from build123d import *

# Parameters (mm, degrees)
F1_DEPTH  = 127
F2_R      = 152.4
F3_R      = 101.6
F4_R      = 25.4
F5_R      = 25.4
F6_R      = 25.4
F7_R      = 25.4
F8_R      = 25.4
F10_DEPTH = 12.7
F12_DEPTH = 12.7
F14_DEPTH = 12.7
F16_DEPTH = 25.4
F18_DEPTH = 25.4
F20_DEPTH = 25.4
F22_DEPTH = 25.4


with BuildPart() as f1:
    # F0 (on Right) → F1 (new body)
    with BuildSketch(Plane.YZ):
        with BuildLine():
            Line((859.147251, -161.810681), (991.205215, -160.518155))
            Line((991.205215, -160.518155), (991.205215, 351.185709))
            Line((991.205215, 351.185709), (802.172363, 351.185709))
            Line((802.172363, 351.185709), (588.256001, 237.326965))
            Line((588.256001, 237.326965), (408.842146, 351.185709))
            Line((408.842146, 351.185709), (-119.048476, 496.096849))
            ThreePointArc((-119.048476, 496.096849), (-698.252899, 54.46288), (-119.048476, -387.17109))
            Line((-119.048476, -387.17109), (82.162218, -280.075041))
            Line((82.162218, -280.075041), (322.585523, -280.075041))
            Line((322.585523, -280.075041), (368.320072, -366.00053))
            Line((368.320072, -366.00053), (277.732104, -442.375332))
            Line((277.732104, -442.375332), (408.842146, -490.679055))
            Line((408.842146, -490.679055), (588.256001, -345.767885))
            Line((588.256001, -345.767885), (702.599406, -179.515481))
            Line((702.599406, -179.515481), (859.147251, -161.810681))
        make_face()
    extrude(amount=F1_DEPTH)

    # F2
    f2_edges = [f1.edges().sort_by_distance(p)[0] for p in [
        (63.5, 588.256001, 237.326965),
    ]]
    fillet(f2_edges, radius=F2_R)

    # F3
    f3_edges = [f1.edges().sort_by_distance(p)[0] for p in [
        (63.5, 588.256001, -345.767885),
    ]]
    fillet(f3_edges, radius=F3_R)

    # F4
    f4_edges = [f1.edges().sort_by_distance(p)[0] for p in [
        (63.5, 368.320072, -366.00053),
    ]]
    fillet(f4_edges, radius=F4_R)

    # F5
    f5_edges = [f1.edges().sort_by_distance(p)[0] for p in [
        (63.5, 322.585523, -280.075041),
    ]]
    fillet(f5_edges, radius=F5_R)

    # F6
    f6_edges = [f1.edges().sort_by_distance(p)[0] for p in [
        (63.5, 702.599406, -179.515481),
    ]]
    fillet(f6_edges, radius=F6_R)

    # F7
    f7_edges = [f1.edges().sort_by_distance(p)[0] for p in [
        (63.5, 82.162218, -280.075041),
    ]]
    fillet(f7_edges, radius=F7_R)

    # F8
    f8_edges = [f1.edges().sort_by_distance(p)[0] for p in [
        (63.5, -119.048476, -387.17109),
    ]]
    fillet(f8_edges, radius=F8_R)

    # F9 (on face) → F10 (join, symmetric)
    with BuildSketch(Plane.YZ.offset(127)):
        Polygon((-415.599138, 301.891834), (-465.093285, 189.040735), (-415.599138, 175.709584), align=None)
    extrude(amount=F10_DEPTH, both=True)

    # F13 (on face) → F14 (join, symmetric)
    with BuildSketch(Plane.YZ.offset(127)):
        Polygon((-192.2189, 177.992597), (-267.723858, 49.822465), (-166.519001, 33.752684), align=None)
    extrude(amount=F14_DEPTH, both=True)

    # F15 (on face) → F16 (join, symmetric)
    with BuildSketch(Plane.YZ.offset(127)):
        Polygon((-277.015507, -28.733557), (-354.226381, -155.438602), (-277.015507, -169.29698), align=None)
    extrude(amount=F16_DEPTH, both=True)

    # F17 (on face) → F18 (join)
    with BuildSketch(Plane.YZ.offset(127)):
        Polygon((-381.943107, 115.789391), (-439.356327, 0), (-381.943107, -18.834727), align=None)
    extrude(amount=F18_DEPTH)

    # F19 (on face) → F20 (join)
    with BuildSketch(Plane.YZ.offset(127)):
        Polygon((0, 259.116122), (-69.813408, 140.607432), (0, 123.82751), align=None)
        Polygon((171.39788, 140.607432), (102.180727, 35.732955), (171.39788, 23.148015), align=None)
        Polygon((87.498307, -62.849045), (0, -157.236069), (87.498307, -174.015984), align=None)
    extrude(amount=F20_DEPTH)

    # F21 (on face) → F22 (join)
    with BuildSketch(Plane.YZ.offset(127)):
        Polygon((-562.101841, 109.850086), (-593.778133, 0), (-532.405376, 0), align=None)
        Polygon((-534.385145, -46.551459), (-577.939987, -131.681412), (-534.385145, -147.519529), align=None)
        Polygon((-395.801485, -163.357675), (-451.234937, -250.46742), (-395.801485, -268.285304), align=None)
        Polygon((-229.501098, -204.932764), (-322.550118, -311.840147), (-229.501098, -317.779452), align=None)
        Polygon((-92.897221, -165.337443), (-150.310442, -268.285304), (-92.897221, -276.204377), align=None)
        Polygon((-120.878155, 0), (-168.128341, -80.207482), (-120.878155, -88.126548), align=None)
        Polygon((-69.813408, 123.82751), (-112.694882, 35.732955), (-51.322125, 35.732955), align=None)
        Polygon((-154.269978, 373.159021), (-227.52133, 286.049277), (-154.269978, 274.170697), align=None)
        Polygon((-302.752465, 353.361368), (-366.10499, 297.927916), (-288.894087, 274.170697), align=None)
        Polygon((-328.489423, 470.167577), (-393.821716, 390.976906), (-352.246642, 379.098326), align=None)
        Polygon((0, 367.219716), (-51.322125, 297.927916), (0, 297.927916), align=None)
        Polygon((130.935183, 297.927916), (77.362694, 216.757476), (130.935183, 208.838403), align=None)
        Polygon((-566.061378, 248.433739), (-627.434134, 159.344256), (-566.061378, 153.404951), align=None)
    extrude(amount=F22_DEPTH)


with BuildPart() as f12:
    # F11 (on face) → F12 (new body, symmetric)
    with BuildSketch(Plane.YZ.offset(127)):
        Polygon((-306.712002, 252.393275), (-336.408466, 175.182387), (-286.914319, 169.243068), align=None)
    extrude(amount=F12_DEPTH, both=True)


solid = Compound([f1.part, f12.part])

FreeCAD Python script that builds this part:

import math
import FreeCAD as App
import Part
import Sketcher

V = App.Vector
Q = App.Units.Quantity


def edges_at(feature, points):
    """Names of the edges that pass closest to the given points."""
    edges = feature.Shape.Edges
    near = lambda p: min(range(len(edges)), key=lambda i: edges[i].distToShape(Part.Vertex(*p))[0])
    return sorted({f"Edge{near(p) + 1}" for p in points})


def add_polygon(sketch, points):
    """Adds a closed chain of lines whose ends are joined by coincident constraints."""
    first, n = sketch.GeometryCount, len(points)
    for a, b in zip(points, points[1:] + points[:1]):
        sketch.addGeometry(Part.LineSegment(App.Vector(*a, 0), App.Vector(*b, 0)), False)
    for i in range(n):
        sketch.addConstraint(Sketcher.Constraint("Coincident", first + i, 2, first + (i + 1) % n, 1))

doc = App.newDocument("Part")
body = doc.addObject("PartDesign::Body", "Body")

# Sketch on YZ plane
sketch1 = doc.addObject("Sketcher::SketchObject", "Sketch")
body.addObject(sketch1)
sketch1.AttachmentSupport = (doc.YZ_Plane, [""])
sketch1.MapMode = "FlatFace"
sketch1.addGeometry(Part.LineSegment(V(859, -162, 0), V(991, -161, 0)), False)
sketch1.addGeometry(Part.LineSegment(V(991, -161, 0), V(991, 351, 0)), False)
sketch1.addGeometry(Part.LineSegment(V(991, 351, 0), V(802, 351, 0)), False)
sketch1.addGeometry(Part.LineSegment(V(802, 351, 0), V(588, 237, 0)), False)
sketch1.addGeometry(Part.LineSegment(V(588, 237, 0), V(409, 351, 0)), False)
sketch1.addGeometry(Part.LineSegment(V(409, 351, 0), V(-119, 496, 0)), False)
sketch1.addGeometry(Part.ArcOfCircle(Part.Circle(V(-240, 54, 0), V(0, 0, 1), 458), math.radians(75), math.radians(285)), False)
sketch1.addGeometry(Part.LineSegment(V(-119, -387, 0), V(82, -280, 0)), False)
sketch1.addGeometry(Part.LineSegment(V(82, -280, 0), V(323, -280, 0)), False)
sketch1.addGeometry(Part.LineSegment(V(323, -280, 0), V(368, -366, 0)), False)
sketch1.addGeometry(Part.LineSegment(V(368, -366, 0), V(278, -442, 0)), False)
sketch1.addGeometry(Part.LineSegment(V(278, -442, 0), V(409, -491, 0)), False)
sketch1.addGeometry(Part.LineSegment(V(409, -491, 0), V(588, -346, 0)), False)
sketch1.addGeometry(Part.LineSegment(V(588, -346, 0), V(703, -180, 0)), False)
sketch1.addGeometry(Part.LineSegment(V(703, -180, 0), V(859, -162, 0)), False)
sketch1.addConstraint(Sketcher.Constraint("Coincident", 0, 2, 1, 1))
sketch1.addConstraint(Sketcher.Constraint("Coincident", 1, 2, 2, 1))
sketch1.addConstraint(Sketcher.Constraint("Coincident", 2, 2, 3, 1))
sketch1.addConstraint(Sketcher.Constraint("Coincident", 3, 2, 4, 1))
sketch1.addConstraint(Sketcher.Constraint("Coincident", 4, 2, 5, 1))
sketch1.addConstraint(Sketcher.Constraint("Tangent", 5, 2, 6, 1))
sketch1.addConstraint(Sketcher.Constraint("Coincident", 6, 2, 7, 1))
sketch1.addConstraint(Sketcher.Constraint("Coincident", 7, 2, 8, 1))
sketch1.addConstraint(Sketcher.Constraint("Coincident", 8, 2, 9, 1))
sketch1.addConstraint(Sketcher.Constraint("Coincident", 9, 2, 10, 1))
sketch1.addConstraint(Sketcher.Constraint("Coincident", 10, 2, 11, 1))
sketch1.addConstraint(Sketcher.Constraint("Coincident", 11, 2, 12, 1))
sketch1.addConstraint(Sketcher.Constraint("Coincident", 12, 2, 13, 1))
sketch1.addConstraint(Sketcher.Constraint("Coincident", 13, 2, 14, 1))
sketch1.addConstraint(Sketcher.Constraint("Coincident", 14, 2, 0, 1))
sketch1.addConstraint(Sketcher.Constraint("Vertical", 1))
sketch1.addConstraint(Sketcher.Constraint("Horizontal", 2))
sketch1.addConstraint(Sketcher.Constraint("Horizontal", 8))
sketch1.addConstraint(Sketcher.Constraint("Parallel", 3, 7))
sketch1.addConstraint(Sketcher.Constraint("Perpendicular", 7, 9))
sketch1.addConstraint(Sketcher.Constraint("Horizontal", 2, 2, 4, 2))
sketch1.addConstraint(Sketcher.Constraint("Vertical", 5, 2, 6, 2))
sketch1.addConstraint(Sketcher.Constraint("Vertical", 4, 2, 11, 2))
sketch1.addConstraint(Sketcher.Constraint("Vertical", 3, 2, 12, 2))
sketch1.addConstraint(Sketcher.Constraint("Radius", 6, 457.971578))
sketch1.addConstraint(Sketcher.Constraint("Distance", 3, 242.330402))
sketch1.addConstraint(Sketcher.Constraint("DistanceX", 2, 2, 2, 1, 189.032852))
sketch1.addConstraint(Sketcher.Constraint("DistanceX", -1, 1, 3, 2, 588.256001))
sketch1.addConstraint(Sketcher.Constraint("DistanceY", 6, 2, 4, 2, 738.356799))
sketch1.addConstraint(Sketcher.Constraint("DistanceY", 10, 2, 9, 2, 76.374802))
sketch1.addConstraint(Sketcher.Constraint("DistanceY", 13, 2, 14, 2, 17.7048))
sketch1.addConstraint(Sketcher.Constraint("Distance", 0, 132.064289))
sketch1.addConstraint(Sketcher.Constraint("Distance", 5, 547.41917))
sketch1.addConstraint(Sketcher.Constraint("Distance", 7, 227.937068))
sketch1.addConstraint(Sketcher.Constraint("Distance", 10, 118.487511))
sketch1.addConstraint(Sketcher.Constraint("Distance", 11, 139.725061))
sketch1.addConstraint(Sketcher.Constraint("Distance", 12, 230.626491))
sketch1.addConstraint(Sketcher.Constraint("Distance", 13, 201.777789))
sketch1.addConstraint(Sketcher.Constraint("DistanceX", 8, 1, 8, 2, 240.423305))
sketch1.addConstraint(Sketcher.Constraint("DistanceY", 1, 1, 1, 2, 511.703864))
sketch1.addConstraint(Sketcher.Constraint("DistanceX", 6, 3, -1, 1, 240.281321))
sketch1.addConstraint(Sketcher.Constraint("DistanceY", -1, 1, 6, 3, 54.462879))
sketch1.addConstraint(Sketcher.Constraint("DistanceY", 7, 2, -1, 1, 280.075041))
sketch1.addConstraint(Sketcher.Constraint("DistanceX", -1, 1, 9, 2, 368.320072))
sketch1.addConstraint(Sketcher.Constraint("DistanceY", 13, 2, -1, 1, 179.515481))
pad1 = doc.addObject("PartDesign::Pad", "Pad")
body.addObject(pad1)
pad1.Profile = sketch1
pad1.Length = Q("5 in")
doc.recompute()

fillet = doc.addObject("PartDesign::Fillet", "Fillet")
body.addObject(fillet)
fillet.Base = (pad1, edges_at(pad1, [(63.5, 588.256, 237.327)]))
fillet.Radius = Q("6 in")
doc.recompute()

fillet2 = doc.addObject("PartDesign::Fillet", "Fillet001")
body.addObject(fillet2)
fillet2.Base = (fillet, edges_at(fillet, [(63.5, 588.256, -345.768)]))
fillet2.Radius = Q("4 in")
doc.recompute()

fillet3 = doc.addObject("PartDesign::Fillet", "Fillet002")
body.addObject(fillet3)
fillet3.Base = (fillet2, edges_at(fillet2, [(63.5, 368.32, -366.001)]))
fillet3.Radius = Q("1 in")
doc.recompute()

fillet4 = doc.addObject("PartDesign::Fillet", "Fillet003")
body.addObject(fillet4)
fillet4.Base = (fillet3, edges_at(fillet3, [(63.5, 322.586, -280.075)]))
fillet4.Radius = Q("1 in")
doc.recompute()

fillet5 = doc.addObject("PartDesign::Fillet", "Fillet004")
body.addObject(fillet5)
fillet5.Base = (fillet4, edges_at(fillet4, [(63.5, 702.599, -179.515)]))
fillet5.Radius = Q("1 in")
doc.recompute()

fillet6 = doc.addObject("PartDesign::Fillet", "Fillet005")
body.addObject(fillet6)
fillet6.Base = (fillet5, edges_at(fillet5, [(63.5, 82.162, -280.075)]))
fillet6.Radius = Q("1 in")
doc.recompute()

fillet7 = doc.addObject("PartDesign::Fillet", "Fillet006")
body.addObject(fillet7)
fillet7.Base = (fillet6, edges_at(fillet6, [(63.5, -119.048, -387.171)]))
fillet7.Radius = Q("1 in")

# Sketch on YZ plane
sketch2 = doc.addObject("Sketcher::SketchObject", "Sketch001")
body.addObject(sketch2)
sketch2.AttachmentSupport = (doc.YZ_Plane, [""])
sketch2.MapMode = "FlatFace"
sketch2.AttachmentOffset = App.Placement(V(0, 0, 5 * 25.4), App.Rotation())
add_polygon(sketch2, [(-416, 302), (-465, 189), (-416, 176)])  # lines 0-2
sketch2.addConstraint(Sketcher.Constraint("Vertical", 2))
sketch2.addConstraint(Sketcher.Constraint("DistanceY", -1, 1, 1, 2, Q("6.9177002 in")))
sketch2.addConstraint(Sketcher.Constraint("Distance", 0, 123.227599))
sketch2.addConstraint(Sketcher.Constraint("DistanceY", 2, 1, 2, 2, 126.18225))
sketch2.addConstraint(Sketcher.Constraint("DistanceY", 0, 2, 2, 2, 112.851099))
sketch2.addConstraint(Sketcher.Constraint("DistanceX", 1, 2, -1, 1, 415.599138))
pad2 = doc.addObject("PartDesign::Pad", "Pad001")
body.addObject(pad2)
pad2.Profile = sketch2
pad2.Length = Q("1 in")
pad2.Midplane = True

# Sketch on YZ plane
sketch3 = doc.addObject("Sketcher::SketchObject", "Sketch002")
body.addObject(sketch3)
sketch3.AttachmentSupport = (doc.YZ_Plane, [""])
sketch3.MapMode = "FlatFace"
sketch3.AttachmentOffset = App.Placement(V(0, 0, 5 * 25.4), App.Rotation())
add_polygon(sketch3, [(-192, 178), (-268, 50), (-167, 34)])  # lines 0-2
sketch3.addConstraint(Sketcher.Constraint("DistanceX", 1, 2, -1, 1, 166.519001))
sketch3.addConstraint(Sketcher.Constraint("DistanceX", 2, 2, -1, 1, 192.2189))
sketch3.addConstraint(Sketcher.Constraint("Distance", 2, 146.51156))
sketch3.addConstraint(Sketcher.Constraint("DistanceX", 0, 2, -1, 1, 267.723858))
sketch3.addConstraint(Sketcher.Constraint("DistanceY", 1, 2, 0, 2, 16.069781))
sketch3.addConstraint(Sketcher.Constraint("DistanceY", -1, 1, 0, 2, 49.822465))
pad3 = doc.addObject("PartDesign::Pad", "Pad002")
body.addObject(pad3)
pad3.Profile = sketch3
pad3.Length = Q("1 in")
pad3.Midplane = True

# Sketch on YZ plane
sketch4 = doc.addObject("Sketcher::SketchObject", "Sketch003")
body.addObject(sketch4)
sketch4.AttachmentSupport = (doc.YZ_Plane, [""])
sketch4.MapMode = "FlatFace"
sketch4.AttachmentOffset = App.Placement(V(0, 0, 5 * 25.4), App.Rotation())
add_polygon(sketch4, [(-277, -29), (-354, -155), (-277, -169)])  # lines 0-2
sketch4.addConstraint(Sketcher.Constraint("Vertical", 2))
sketch4.addConstraint(Sketcher.Constraint("DistanceY", 0, 2, -1, 1, 155.438602))
sketch4.addConstraint(Sketcher.Constraint("DistanceY", 2, 1, 2, 2, 140.563423))
sketch4.addConstraint(Sketcher.Constraint("DistanceX", 0, 2, -1, 1, 354.226381))
sketch4.addConstraint(Sketcher.Constraint("DistanceY", 1, 2, -1, 1, 169.29698))
sketch4.addConstraint(Sketcher.Constraint("Distance", 0, 148.376843))
pad4 = doc.addObject("PartDesign::Pad", "Pad003")
body.addObject(pad4)
pad4.Profile = sketch4
pad4.Length = Q("2 in")
pad4.Midplane = True

# Sketch on YZ plane
sketch5 = doc.addObject("Sketcher::SketchObject", "Sketch004")
body.addObject(sketch5)
sketch5.AttachmentSupport = (doc.YZ_Plane, [""])
sketch5.MapMode = "FlatFace"
sketch5.AttachmentOffset = App.Placement(V(0, 0, 5 * 25.4), App.Rotation())
add_polygon(sketch5, [(-382, 116), (-439, 0), (-382, -19)])  # lines 0-2
sketch5.addConstraint(Sketcher.Constraint("Vertical", 2))
sketch5.addConstraint(Sketcher.Constraint("PointOnObject", 0, 2, -1))
sketch5.addConstraint(Sketcher.Constraint("DistanceY", 2, 1, 2, 2, 134.624118))
sketch5.addConstraint(Sketcher.Constraint("Distance", 0, 129.24187))
sketch5.addConstraint(Sketcher.Constraint("Distance", 1, 60.42371))
sketch5.addConstraint(Sketcher.Constraint("DistanceX", 0, 2, -1, 1, 439.356327))
pad5 = doc.addObject("PartDesign::Pad", "Pad004")
body.addObject(pad5)
pad5.Profile = sketch5
pad5.Length = Q("1 in")

# Sketch on YZ plane
sketch6 = doc.addObject("Sketcher::SketchObject", "Sketch005")
body.addObject(sketch6)
sketch6.AttachmentSupport = (doc.YZ_Plane, [""])
sketch6.MapMode = "FlatFace"
sketch6.AttachmentOffset = App.Placement(V(0, 0, 5 * 25.4), App.Rotation())
add_polygon(sketch6, [(0, 259), (-70, 141), (0, 124)])  # lines 0-2
add_polygon(sketch6, [(171, 141), (102, 36), (171, 23)])  # lines 3-5
add_polygon(sketch6, [(87, -63), (0, -157), (87, -174)])  # lines 6-8
sketch6.addConstraint(Sketcher.Constraint("Vertical", 2))
sketch6.addConstraint(Sketcher.Constraint("Vertical", 5))
sketch6.addConstraint(Sketcher.Constraint("Vertical", 8))
sketch6.addConstraint(Sketcher.Constraint("PointOnObject", 1, 2, -2))
sketch6.addConstraint(Sketcher.Constraint("PointOnObject", 6, 2, -2))
sketch6.addConstraint(Sketcher.Constraint("Horizontal", 0, 2, 5, 2))
sketch6.addConstraint(Sketcher.Constraint("DistanceY", 2, 1, 2, 2, 135.288612))
sketch6.addConstraint(Sketcher.Constraint("DistanceY", 8, 1, 8, 2, 111.166939))
sketch6.addConstraint(Sketcher.Constraint("DistanceY", 6, 2, 0, 2, 297.843501))
sketch6.addConstraint(Sketcher.Constraint("DistanceY", 7, 2, 4, 2, 197.163999))
sketch6.addConstraint(Sketcher.Constraint("DistanceY", 8, 2, 3, 2, 98.582))
sketch6.addConstraint(Sketcher.Constraint("Distance", 6, 128.704561))
sketch6.addConstraint(Sketcher.Constraint("DistanceY", 5, 1, 5, 2, 117.459417))
sketch6.addConstraint(Sketcher.Constraint("DistanceY", -1, 1, 0, 2, 140.607432))
sketch6.addConstraint(Sketcher.Constraint("DistanceY", -1, 1, 1, 2, 123.82751))
sketch6.addConstraint(Sketcher.Constraint("DistanceX", -1, 1, 4, 2, 171.39788))
sketch6.addConstraint(Sketcher.Constraint("DistanceX", 7, 2, 3, 2, 14.68242))
sketch6.addConstraint(Sketcher.Constraint("Distance", 0, 137.543526))
pad6 = doc.addObject("PartDesign::Pad", "Pad005")
body.addObject(pad6)
pad6.Profile = sketch6
pad6.Length = Q("1 in")

# Sketch on YZ plane
sketch7 = doc.addObject("Sketcher::SketchObject", "Sketch006")
body.addObject(sketch7)
sketch7.AttachmentSupport = (doc.YZ_Plane, [""])
sketch7.MapMode = "FlatFace"
sketch7.AttachmentOffset = App.Placement(V(0, 0, 5 * 25.4), App.Rotation())
add_polygon(sketch7, [(-562, 110), (-594, 0), (-532, 0)])  # lines 0-2
add_polygon(sketch7, [(-534, -47), (-578, -132), (-534, -148)])  # lines 3-5
add_polygon(sketch7, [(-396, -163), (-451, -250), (-396, -268)])  # lines 6-8
add_polygon(sketch7, [(-230, -205), (-323, -312), (-230, -318)])  # lines 9-11
add_polygon(sketch7, [(-93, -165), (-150, -268), (-93, -276)])  # lines 12-14
add_polygon(sketch7, [(-121, 0), (-168, -80), (-121, -88)])  # lines 15-17
add_polygon(sketch7, [(-70, 124), (-113, 36), (-51, 36)])  # lines 18-20
add_polygon(sketch7, [(-154, 373), (-228, 286), (-154, 274)])  # lines 21-23
add_polygon(sketch7, [(-303, 353), (-366, 298), (-289, 274)])  # lines 24-26
add_polygon(sketch7, [(-328, 470), (-394, 391), (-352, 379)])  # lines 27-29
add_polygon(sketch7, [(0, 367), (-51, 298), (0, 298)])  # lines 30-32
add_polygon(sketch7, [(131, 298), (77, 217), (131, 209)])  # lines 33-35
add_polygon(sketch7, [(-566, 248), (-627, 159), (-566, 153)])  # lines 36-38
sketch7.addConstraint(Sketcher.Constraint("Horizontal", 1))
sketch7.addConstraint(Sketcher.Constraint("Vertical", 5))
sketch7.addConstraint(Sketcher.Constraint("Vertical", 8))
sketch7.addConstraint(Sketcher.Constraint("Vertical", 11))
sketch7.addConstraint(Sketcher.Constraint("Vertical", 14))
sketch7.addConstraint(Sketcher.Constraint("Vertical", 17))
sketch7.addConstraint(Sketcher.Constraint("Horizontal", 19))
sketch7.addConstraint(Sketcher.Constraint("Vertical", 23))
sketch7.addConstraint(Sketcher.Constraint("Horizontal", 31))
sketch7.addConstraint(Sketcher.Constraint("Vertical", 32))
sketch7.addConstraint(Sketcher.Constraint("Vertical", 35))
sketch7.addConstraint(Sketcher.Constraint("Vertical", 38))
sketch7.addConstraint(Sketcher.Constraint("PointOnObject", 0, 2, -1))
sketch7.addConstraint(Sketcher.Constraint("PointOnObject", 17, 2, -1))
sketch7.addConstraint(Sketcher.Constraint("PointOnObject", 31, 2, -2))
sketch7.addConstraint(Sketcher.Constraint("Horizontal", 7, 2, 12, 2))
sketch7.addConstraint(Sketcher.Constraint("Horizontal", 22, 2, 25, 2))
sketch7.addConstraint(Sketcher.Constraint("Horizontal", 24, 2, 30, 2))
sketch7.addConstraint(Sketcher.Constraint("Horizontal", 31, 2, 35, 2))
sketch7.addConstraint(Sketcher.Constraint("Vertical", 19, 2, 30, 2))
sketch7.addConstraint(Sketcher.Constraint("Equal", 1, 19))
sketch7.addConstraint(Sketcher.Constraint("DistanceY", 32, 1, 32, 2, 69.2918))
sketch7.addConstraint(Sketcher.Constraint("DistanceY", -1, 1, 23, 2, Q("14.6913 in")))
sketch7.addConstraint(Sketcher.Constraint("Distance", 6, 103.251999))
sketch7.addConstraint(Sketcher.Constraint("Distance", 33, 97.255601))
sketch7.addConstraint(Sketcher.Constraint("DistanceY", 5, 1, 5, 2, 100.96807))
sketch7.addConstraint(Sketcher.Constraint("DistanceY", 8, 1, 8, 2, 104.927629))
sketch7.addConstraint(Sketcher.Constraint("DistanceY", 11, 1, 11, 2, 112.846688))
sketch7.addConstraint(Sketcher.Constraint("DistanceY", 17, 1, 17, 2, 88.126548))
sketch7.addConstraint(Sketcher.Constraint("DistanceX", 10, 2, -1, 1, 229.501098))
sketch7.addConstraint(Sketcher.Constraint("DistanceY", 3, 2, 2, 2, 241.531498))
sketch7.addConstraint(Sketcher.Constraint("DistanceX", 3, 2, 7, 2, 182.138502))
sketch7.addConstraint(Sketcher.Constraint("DistanceX", 15, 2, 12, 2, 17.817899))
sketch7.addConstraint(Sketcher.Constraint("DistanceY", 14, 2, 18, 2, 201.070398))
sketch7.addConstraint(Sketcher.Constraint("DistanceX", 36, 2, 0, 2, 33.656001))
sketch7.addConstraint(Sketcher.Constraint("DistanceX", 37, 2, 1, 2, 33.656002))
sketch7.addConstraint(Sketcher.Constraint("Distance", 3, 95.624961))
sketch7.addConstraint(Sketcher.Constraint("Distance", 4, 46.345121))
sketch7.addConstraint(Sketcher.Constraint("Distance", 10, 93.23838))
sketch7.addConstraint(Sketcher.Constraint("Distance", 13, 57.956791))
sketch7.addConstraint(Sketcher.Constraint("Distance", 21, 113.815061))
sketch7.addConstraint(Sketcher.Constraint("Distance", 22, 74.208229))
sketch7.addConstraint(Sketcher.Constraint("DistanceX", 1, 1, 1, 2, 61.372757))
sketch7.addConstraint(Sketcher.Constraint("DistanceX", 31, 1, 31, 2, 51.322125))
sketch7.addConstraint(Sketcher.Constraint("DistanceY", 14, 1, 14, 2, 110.866934))
sketch7.addConstraint(Sketcher.Constraint("DistanceY", 23, 1, 23, 2, 98.988324))
sketch7.addConstraint(Sketcher.Constraint("DistanceY", 35, 1, 35, 2, 89.089513))
sketch7.addConstraint(Sketcher.Constraint("DistanceY", 38, 1, 38, 2, 95.028788))
sketch7.addConstraint(Sketcher.Constraint("DistanceX", 2, 2, -1, 1, 562.101841))
sketch7.addConstraint(Sketcher.Constraint("DistanceY", 3, 2, -1, 1, 131.681412))
sketch7.addConstraint(Sketcher.Constraint("DistanceY", 6, 2, -1, 1, 250.46742))
sketch7.addConstraint(Sketcher.Constraint("DistanceX", 9, 2, -1, 1, 322.550118))
sketch7.addConstraint(Sketcher.Constraint("DistanceY", 10, 2, -1, 1, 317.779452))
sketch7.addConstraint(Sketcher.Constraint("DistanceX", 12, 2, -1, 1, 150.310442))
sketch7.addConstraint(Sketcher.Constraint("DistanceX", 13, 2, -1, 1, 92.897221))
sketch7.addConstraint(Sketcher.Constraint("DistanceY", 15, 2, -1, 1, 80.207482))
sketch7.addConstraint(Sketcher.Constraint("DistanceY", -1, 1, 20, 2, 123.82751))
sketch7.addConstraint(Sketcher.Constraint("DistanceX", 21, 2, -1, 1, 227.52133))
sketch7.addConstraint(Sketcher.Constraint("DistanceX", 24, 2, -1, 1, 366.10499))
sketch7.addConstraint(Sketcher.Constraint("DistanceY", -1, 1, 26, 2, 353.361368))
sketch7.addConstraint(Sketcher.Constraint("DistanceX", 28, 2, -1, 1, 352.246642))
sketch7.addConstraint(Sketcher.Constraint("DistanceX", 37, 2, -1, 1, 566.061378))
sketch7.addConstraint(Sketcher.Constraint("DistanceY", -1, 1, 37, 2, 153.404951))
sketch7.addConstraint(Sketcher.Constraint("DistanceX", 3, 2, 1, 2, 45.534611))
sketch7.addConstraint(Sketcher.Constraint("DistanceX", 3, 2, 6, 2, 126.70505))
sketch7.addConstraint(Sketcher.Constraint("DistanceX", 17, 2, 19, 2, 69.55603))
sketch7.addConstraint(Sketcher.Constraint("DistanceX", 21, 2, 20, 2, 157.707922))
sketch7.addConstraint(Sketcher.Constraint("DistanceY", 21, 2, 24, 2, 11.878639))
sketch7.addConstraint(Sketcher.Constraint("DistanceX", 25, 2, 22, 2, 134.624109))
sketch7.addConstraint(Sketcher.Constraint("DistanceY", 24, 2, 27, 2, 93.04899))
sketch7.addConstraint(Sketcher.Constraint("DistanceX", 27, 2, 26, 2, 91.069251))
sketch7.addConstraint(Sketcher.Constraint("DistanceX", 27, 2, 25, 2, 104.927629))
sketch7.addConstraint(Sketcher.Constraint("DistanceY", 28, 2, 27, 2, 11.87858))
sketch7.addConstraint(Sketcher.Constraint("DistanceX", 28, 2, 29, 2, 23.757219))
sketch7.addConstraint(Sketcher.Constraint("DistanceY", 28, 2, 29, 2, 91.069251))
sketch7.addConstraint(Sketcher.Constraint("DistanceY", 33, 2, 31, 2, 81.17044))
sketch7.addConstraint(Sketcher.Constraint("DistanceX", 30, 2, 33, 2, 128.684819))
sketch7.addConstraint(Sketcher.Constraint("DistanceY", 2, 2, 36, 2, 49.49417))
pad7 = doc.addObject("PartDesign::Pad", "Pad006")
body.addObject(pad7)
pad7.Profile = sketch7
pad7.Length = Q("1 in")
body2 = doc.addObject("PartDesign::Body", "Body001")

# Sketch on YZ plane
sketch8 = doc.addObject("Sketcher::SketchObject", "Sketch007")
body2.addObject(sketch8)
sketch8.AttachmentSupport = (doc.getObject("YZ_Plane001"), [""])
sketch8.MapMode = "FlatFace"
sketch8.AttachmentOffset = App.Placement(V(0, 0, 5 * 25.4), App.Rotation())
add_polygon(sketch8, [(-307, 252), (-336, 175), (-287, 169)])  # lines 0-2
sketch8.addConstraint(Sketcher.Constraint("DistanceX", 2, 2, -1, 1, 306.712002))
sketch8.addConstraint(Sketcher.Constraint("DistanceX", 1, 2, -1, 1, 286.914319))
sketch8.addConstraint(Sketcher.Constraint("DistanceY", -1, 1, 1, 2, 169.243068))
sketch8.addConstraint(Sketcher.Constraint("DistanceY", 1, 2, 0, 2, 5.939319))
sketch8.addConstraint(Sketcher.Constraint("Distance", 0, 82.724852))
sketch8.addConstraint(Sketcher.Constraint("Distance", 1, 49.849234))
pad8 = doc.addObject("PartDesign::Pad", "Pad007")
body2.addObject(pad8)
pad8.Profile = sketch8
pad8.Length = Q("1 in")
pad8.Midplane = True

doc.recompute()
